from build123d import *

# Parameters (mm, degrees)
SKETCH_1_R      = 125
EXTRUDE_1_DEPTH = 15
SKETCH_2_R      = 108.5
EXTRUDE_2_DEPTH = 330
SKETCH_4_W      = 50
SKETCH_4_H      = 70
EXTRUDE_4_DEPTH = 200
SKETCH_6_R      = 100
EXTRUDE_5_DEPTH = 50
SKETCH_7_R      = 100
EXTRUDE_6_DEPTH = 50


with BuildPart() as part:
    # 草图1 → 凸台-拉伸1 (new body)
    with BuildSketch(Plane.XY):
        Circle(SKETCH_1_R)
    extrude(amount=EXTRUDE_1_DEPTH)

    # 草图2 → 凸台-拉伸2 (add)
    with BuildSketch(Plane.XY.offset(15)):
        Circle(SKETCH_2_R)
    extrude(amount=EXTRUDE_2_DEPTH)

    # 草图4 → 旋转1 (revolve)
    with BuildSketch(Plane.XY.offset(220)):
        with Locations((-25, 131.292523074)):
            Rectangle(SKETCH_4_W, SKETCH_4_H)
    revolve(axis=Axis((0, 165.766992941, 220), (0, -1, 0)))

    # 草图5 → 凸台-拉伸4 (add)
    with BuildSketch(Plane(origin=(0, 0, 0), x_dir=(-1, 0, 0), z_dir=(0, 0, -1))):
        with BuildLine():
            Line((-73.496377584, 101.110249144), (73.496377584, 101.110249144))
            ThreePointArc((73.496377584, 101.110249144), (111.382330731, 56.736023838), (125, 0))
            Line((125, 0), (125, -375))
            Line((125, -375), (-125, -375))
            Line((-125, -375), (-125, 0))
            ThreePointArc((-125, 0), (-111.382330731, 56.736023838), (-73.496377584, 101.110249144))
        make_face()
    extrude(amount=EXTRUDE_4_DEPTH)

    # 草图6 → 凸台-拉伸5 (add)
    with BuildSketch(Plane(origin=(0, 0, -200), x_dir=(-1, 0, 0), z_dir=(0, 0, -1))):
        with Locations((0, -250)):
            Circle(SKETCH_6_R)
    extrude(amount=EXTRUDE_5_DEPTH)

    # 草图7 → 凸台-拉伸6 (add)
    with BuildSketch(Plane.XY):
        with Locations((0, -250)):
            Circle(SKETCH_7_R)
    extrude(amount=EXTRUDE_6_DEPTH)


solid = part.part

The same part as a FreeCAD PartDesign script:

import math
import FreeCAD as App
import Part
import Sketcher
from FreeCAD import Vector
Q = App.Units.Quantity

doc = App.newDocument("Part")
body = doc.addObject("PartDesign::Body", "Body")

# Sketch on XY plane
sketch1 = body.newObject("Sketcher::SketchObject", "Sketch")
sketch1.AttachmentSupport = (doc.getObject("XY_Plane"), [""])
sketch1.MapMode = "FlatFace"
sketch1.addGeometry(Part.Circle(Vector(0, 0, 0), Vector(0, 0, 1), 125), False)
sketch1.addConstraint(Sketcher.Constraint("Coincident", 0, 3, -1, 1))
sketch1.addConstraint(Sketcher.Constraint("Diameter", 0, Q("250 mm")))
pad1 = body.newObject("PartDesign::Pad", "Pad")
pad1.Profile = sketch1
pad1.Length = 15

# Sketch on XY plane
sketch2 = body.newObject("Sketcher::SketchObject", "Sketch001")
sketch2.AttachmentSupport = (doc.getObject("XY_Plane"), [""])
sketch2.MapMode = "FlatFace"
sketch2.AttachmentOffset = App.Placement(Vector(0, 0, 15), App.Rotation())
sketch2.addGeometry(Part.Circle(Vector(0, 0, 0), Vector(0, 0, 1), 108), False)
sketch2.addConstraint(Sketcher.Constraint("Coincident", 0, 3, -1, 1))
sketch2.addConstraint(Sketcher.Constraint("Diameter", 0, Q("217 mm")))
pad2 = body.newObject("PartDesign::Pad", "Pad001")
pad2.Profile = sketch2
pad2.Length = 330

# Sketch on XY plane
sketch3 = body.newObject("Sketcher::SketchObject", "Sketch002")
sketch3.AttachmentSupport = (doc.getObject("XY_Plane"), [""])
sketch3.MapMode = "FlatFace"
sketch3.AttachmentOffset = App.Placement(Vector(0, 0, 220), App.Rotation())
sketch3.addGeometry(Part.LineSegment(Vector(-50, 166, 0), Vector(-50, 96, 0)), False)
sketch3.addGeometry(Part.LineSegment(Vector(-50, 96, 0), Vector(0, 96, 0)), False)
sketch3.addGeometry(Part.LineSegment(Vector(0, 96, 0), Vector(0, 166, 0)), False)
sketch3.addGeometry(Part.LineSegment(Vector(0, 166, 0), Vector(-50, 166, 0)), False)
sketch3.addConstraint(Sketcher.Constraint("Coincident", 0, 2, 1, 1))
sketch3.addConstraint(Sketcher.Constraint("Coincident", 1, 2, 2, 1))
sketch3.addConstraint(Sketcher.Constraint("Coincident", 2, 2, 3, 1))
sketch3.addConstraint(Sketcher.Constraint("Coincident", 3, 2, 0, 1))
sketch3.addConstraint(Sketcher.Constraint("Vertical", 0))
sketch3.addConstraint(Sketcher.Constraint("Horizontal", 1))
sketch3.addConstraint(Sketcher.Constraint("Vertical", 2))
sketch3.addConstraint(Sketcher.Constraint("Horizontal", 3))
sketch3.addConstraint(Sketcher.Constraint("PointOnObject", 1, 2, -2))
sketch3.addConstraint(Sketcher.Constraint("DistanceX", 1, 1, 1, 2, Q("50 mm")))
sketch3.addConstraint(Sketcher.Constraint("DistanceY", 0, 2, 0, 1, Q("70 mm")))
sketch3.addConstraint(Sketcher.Constraint("DistanceY", -1, 1, 0, 2, Q("96.292523 mm")))
revolution = body.newObject("PartDesign::Revolution", "Revolution")
revolution.Profile = sketch3
revolution.ReferenceAxis = (sketch3, ["V_Axis"])
revolution.Angle = 360

# Sketch on XY plane
sketch4 = body.newObject("Sketcher::SketchObject", "Sketch003")
sketch4.AttachmentSupport = (doc.getObject("XY_Plane"), [""])
sketch4.MapMode = "FlatFace"
sketch4.addGeometry(Part.LineSegment(Vector(-73, 101, 0), Vector(73, 101, 0)), False)
sketch4.addGeometry(Part.ArcOfCircle(Part.Circle(Vector(0, 0, 0), Vector(0, 0, 1), 125), math.radians(0), math.radians(54)), False)
sketch4.addGeometry(Part.LineSegment(Vector(125, 0, 0), Vector(125, -375, 0)), False)
sketch4.addGeometry(Part.LineSegment(Vector(125, -375, 0), Vector(-125, -375, 0)), False)
sketch4.addGeometry(Part.LineSegment(Vector(-125, -375, 0), Vector(-125, 0, 0)), False)
sketch4.addGeometry(Part.ArcOfCircle(Part.Circle(Vector(0, 0, 0), Vector(0, 0, 1), 125), math.radians(126), math.radians(180)), False)
sketch4.addConstraint(Sketcher.Constraint("Coincident", 0, 2, 1, 2))
sketch4.addConstraint(Sketcher.Constraint("Tangent", 1, 1, 2, 1))
sketch4.addConstraint(Sketcher.Constraint("Coincident", 2, 2, 3, 1))
sketch4.addConstraint(Sketcher.Constraint("Coincident", 3, 2, 4, 1))
sketch4.addConstraint(Sketcher.Constraint("Tangent", 4, 2, 5, 2))
sketch4.addConstraint(Sketcher.Constraint("Coincident", 5, 1, 0, 1))
sketch4.addConstraint(Sketcher.Constraint("Horizontal", 0))
sketch4.addConstraint(Sketcher.Constraint("Vertical", 2))
sketch4.addConstraint(Sketcher.Constraint("Horizontal", 3))
sketch4.addConstraint(Sketcher.Constraint("Vertical", 4))
sketch4.addConstraint(Sketcher.Constraint("Coincident", 1, 3, -1, 1))
sketch4.addConstraint(Sketcher.Constraint("Coincident", 5, 3, -1, 1))
sketch4.addConstraint(Sketcher.Constraint("Equal", 1, 5))
sketch4.addConstraint(Sketcher.Constraint("Radius", 1, Q("125 mm")))
sketch4.addConstraint(Sketcher.Constraint("DistanceY", 2, 2, 2, 1, Q("375 mm")))
sketch4.addConstraint(Sketcher.Constraint("DistanceX", 0, 1, 0, 2, Q("146.992755 mm")))
pad3 = body.newObject("PartDesign::Pad", "Pad002")
pad3.Profile = sketch4
pad3.Length = 200
pad3.Reversed = True

# Sketch on XY plane
sketch5 = body.newObject("Sketcher::SketchObject", "Sketch004")
sketch5.AttachmentSupport = (doc.getObject("XY_Plane"), [""])
sketch5.MapMode = "FlatFace"
sketch5.AttachmentOffset = App.Placement(Vector(0, 0, -200), App.Rotation())
sketch5.addGeometry(Part.Circle(Vector(0, -250, 0), Vector(0, 0, 1), 100), False)
sketch5.addConstraint(Sketcher.Constraint("PointOnObject", 0, 3, -2))
sketch5.addConstraint(Sketcher.Constraint("Diameter", 0, Q("200 mm")))
sketch5.addConstraint(Sketcher.Constraint("DistanceY", 0, 3, -1, 1, Q("250 mm")))
pad4 = body.newObject("PartDesign::Pad", "Pad003")
pad4.Profile = sketch5
pad4.Length = 50
pad4.Reversed = True

# Sketch on XY plane
sketch6 = body.newObject("Sketcher::SketchObject", "Sketch005")
sketch6.AttachmentSupport = (doc.getObject("XY_Plane"), [""])
sketch6.MapMode = "FlatFace"
sketch6.addGeometry(Part.Circle(Vector(0, -250, 0), Vector(0, 0, 1), 100), False)
sketch6.addConstraint(Sketcher.Constraint("PointOnObject", 0, 3, -2))
sketch6.addConstraint(Sketcher.Constraint("Diameter", 0, Q("200 mm")))
sketch6.addConstraint(Sketcher.Constraint("DistanceY", 0, 3, -1, 1, Q("250 mm")))
pad5 = body.newObject("PartDesign::Pad", "Pad004")
pad5.Profile = sketch6
pad5.Length = 50

doc.recompute()
